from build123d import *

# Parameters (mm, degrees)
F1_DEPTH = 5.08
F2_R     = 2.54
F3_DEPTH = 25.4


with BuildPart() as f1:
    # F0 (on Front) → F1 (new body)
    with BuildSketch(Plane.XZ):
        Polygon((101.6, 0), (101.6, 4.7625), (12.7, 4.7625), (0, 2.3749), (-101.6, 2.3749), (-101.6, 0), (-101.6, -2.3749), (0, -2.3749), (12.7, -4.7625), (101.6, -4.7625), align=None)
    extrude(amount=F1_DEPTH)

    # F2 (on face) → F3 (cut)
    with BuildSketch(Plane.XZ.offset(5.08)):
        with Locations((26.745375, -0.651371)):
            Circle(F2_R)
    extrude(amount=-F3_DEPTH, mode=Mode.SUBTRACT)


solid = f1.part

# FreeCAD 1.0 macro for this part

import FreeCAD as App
import Part
import Sketcher
from FreeCAD import Vector
Q = App.Units.Quantity

doc = App.newDocument("Part")
body = doc.addObject("PartDesign::Body", "Body")

sketch1 = body.newObject("Sketcher::SketchObject", "Sketch")
sketch1.AttachmentSupport = (doc.getObject("XZ_Plane"), [""])
sketch1.MapMode = "FlatFace"
sketch1.addGeometry([
    Part.LineSegment(Vector(101.6, 4.8, 0), Vector(12.7, 4.8, 0)),
    Part.LineSegment(Vector(12.7, 4.8, 0), Vector(0, 2.4, 0)),
    Part.LineSegment(Vector(0, 2.4, 0), Vector(-101.6, 2.4, 0)),
    Part.LineSegment(Vector(-101.6, 2.4, 0), Vector(-101.6, -2.4, 0)),
    Part.LineSegment(Vector(-101.6, -2.4, 0), Vector(0, -2.4, 0)),
    Part.LineSegment(Vector(0, -2.4, 0), Vector(12.7, -4.8, 0)),
    Part.LineSegment(Vector(12.7, -4.8, 0), Vector(101.6, -4.8, 0)),
    Part.LineSegment(Vector(101.6, -4.8, 0), Vector(101.6, 4.8, 0)),
], False)
sketch1.addConstraint([
    Sketcher.Constraint("Coincident", 0, 2, 1, 1),
    Sketcher.Constraint("Coincident", 1, 2, 2, 1),
    Sketcher.Constraint("Coincident", 2, 2, 3, 1),
    Sketcher.Constraint("Coincident", 3, 2, 4, 1),
    Sketcher.Constraint("Coincident", 4, 2, 5, 1),
    Sketcher.Constraint("Coincident", 5, 2, 6, 1),
    Sketcher.Constraint("Coincident", 6, 2, 7, 1),
    Sketcher.Constraint("Coincident", 7, 2, 0, 1),
    Sketcher.Constraint("Horizontal", 0),
    Sketcher.Constraint("Horizontal", 2),
    Sketcher.Constraint("Vertical", 3),
    Sketcher.Constraint("Horizontal", 4),
    Sketcher.Constraint("Horizontal", 6),
    Sketcher.Constraint("Vertical", 7),
    Sketcher.Constraint("Symmetric", 1, 2, 4, 2, -1, 1),
    Sketcher.Constraint("Symmetric", 0, 2, 5, 2, -1),
    Sketcher.Constraint("PointOnObject", 1, 2, -2),
    Sketcher.Constraint("DistanceX", 2, 2, 2, 1, Q("4 in")),
    Sketcher.Constraint("DistanceX", 0, 2, 0, 1, Q("3.5 in")),
    Sketcher.Constraint("DistanceX", -1, 1, 6, 2, Q("4 in")),
    Sketcher.Constraint("DistanceY", 3, 2, 3, 1, Q("0.187 in")),
    Sketcher.Constraint("DistanceY", 7, 1, 7, 2, Q("0.375 in")),
])
pad1 = body.newObject("PartDesign::Pad", "Pad")
pad1.Profile = sketch1
pad1.Length = Q("0.2 in")

sketch2 = body.newObject("Sketcher::SketchObject", "Sketch001")
sketch2.AttachmentSupport = (doc.getObject("XZ_Plane"), [""])
sketch2.MapMode = "FlatFace"
sketch2.AttachmentOffset = App.Placement(Vector(0, 0, 0.2 * 25.4), App.Rotation())
sketch2.addGeometry(Part.Circle(Vector(26.7, -0.7, 0), Vector(0, 0, 1), 2.5), False)
sketch2.addConstraint([
    Sketcher.Constraint("Diameter", 0, Q("0.2 in")),
    Sketcher.Constraint("DistanceY", 0, 3, -1, 1, Q("0.651371 mm")),
    Sketcher.Constraint("DistanceX", -1, 1, 0, 3, Q("26.745375 mm")),
])
pocket1 = body.newObject("PartDesign::Pocket", "Pocket")
pocket1.Profile = sketch2
pocket1.Length = Q("1 in")

doc.recompute()
